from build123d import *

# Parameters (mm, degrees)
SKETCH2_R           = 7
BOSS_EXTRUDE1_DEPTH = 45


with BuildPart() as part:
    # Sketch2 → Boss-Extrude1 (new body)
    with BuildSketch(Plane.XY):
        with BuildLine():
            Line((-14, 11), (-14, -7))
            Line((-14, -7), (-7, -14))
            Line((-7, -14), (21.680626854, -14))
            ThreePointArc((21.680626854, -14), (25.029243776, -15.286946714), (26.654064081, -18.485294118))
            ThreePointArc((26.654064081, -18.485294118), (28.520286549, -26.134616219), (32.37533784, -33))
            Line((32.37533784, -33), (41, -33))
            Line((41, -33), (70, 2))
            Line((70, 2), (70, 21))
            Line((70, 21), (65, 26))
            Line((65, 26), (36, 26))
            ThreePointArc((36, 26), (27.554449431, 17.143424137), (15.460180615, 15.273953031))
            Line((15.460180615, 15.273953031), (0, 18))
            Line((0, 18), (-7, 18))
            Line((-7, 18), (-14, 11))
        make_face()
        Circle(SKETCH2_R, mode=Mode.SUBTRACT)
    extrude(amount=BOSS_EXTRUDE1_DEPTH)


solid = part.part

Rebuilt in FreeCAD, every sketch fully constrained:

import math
import FreeCAD as App
import Part
import Sketcher

V = App.Vector
Q = App.Units.Quantity

doc = App.newDocument("Part")
body = doc.addObject("PartDesign::Body", "Body")

# Sketch on XY plane
sketch1 = doc.addObject("Sketcher::SketchObject", "Sketch")
body.addObject(sketch1)
sketch1.AttachmentSupport = (doc.XY_Plane, [""])
sketch1.MapMode = "FlatFace"
sketch1.addGeometry(Part.LineSegment(V(-14, 11, 0), V(-14, -7, 0)), False)
sketch1.addGeometry(Part.LineSegment(V(-14, -7, 0), V(-7, -14, 0)), False)
sketch1.addGeometry(Part.LineSegment(V(-7, -14, 0), V(22, -14, 0)), False)
sketch1.addGeometry(Part.ArcOfCircle(Part.Circle(V(22, -19, 0), V(0, 0, 1), 5), math.radians(6), math.radians(90)), False)
sketch1.addGeometry(Part.ArcOfCircle(Part.Circle(V(55, -16, 0), V(0, 0, 1), 29), math.radians(-174), math.radians(-143)), False)
sketch1.addGeometry(Part.LineSegment(V(32, -33, 0), V(41, -33, 0)), False)
sketch1.addGeometry(Part.LineSegment(V(41, -33, 0), V(70, 2, 0)), False)
sketch1.addGeometry(Part.LineSegment(V(70, 2, 0), V(70, 21, 0)), False)
sketch1.addGeometry(Part.LineSegment(V(70, 21, 0), V(65, 26, 0)), False)
sketch1.addGeometry(Part.LineSegment(V(65, 26, 0), V(36, 26, 0)), False)
sketch1.addGeometry(Part.ArcOfCircle(Part.Circle(V(19, 34, 0), V(0, 0, 1), 19), math.radians(-100), math.radians(-25)), False)
sketch1.addGeometry(Part.LineSegment(V(15, 15, 0), V(0, 18, 0)), False)
sketch1.addGeometry(Part.LineSegment(V(0, 18, 0), V(-7, 18, 0)), False)
sketch1.addGeometry(Part.LineSegment(V(-7, 18, 0), V(-14, 11, 0)), False)
sketch1.addGeometry(Part.Circle(V(0, 0, 0), V(0, 0, 1), 7), False)
sketch1.addConstraint(Sketcher.Constraint("Coincident", 0, 2, 1, 1))
sketch1.addConstraint(Sketcher.Constraint("Coincident", 1, 2, 2, 1))
sketch1.addConstraint(Sketcher.Constraint("Tangent", 2, 2, 3, 2))
sketch1.addConstraint(Sketcher.Constraint("Tangent", 3, 1, 4, 1))
sketch1.addConstraint(Sketcher.Constraint("Coincident", 4, 2, 5, 1))
sketch1.addConstraint(Sketcher.Constraint("Coincident", 5, 2, 6, 1))
sketch1.addConstraint(Sketcher.Constraint("Coincident", 6, 2, 7, 1))
sketch1.addConstraint(Sketcher.Constraint("Coincident", 7, 2, 8, 1))
sketch1.addConstraint(Sketcher.Constraint("Coincident", 8, 2, 9, 1))
sketch1.addConstraint(Sketcher.Constraint("Coincident", 9, 2, 10, 2))
sketch1.addConstraint(Sketcher.Constraint("Tangent", 10, 1, 11, 1))
sketch1.addConstraint(Sketcher.Constraint("Coincident", 11, 2, 12, 1))
sketch1.addConstraint(Sketcher.Constraint("Coincident", 12, 2, 13, 1))
sketch1.addConstraint(Sketcher.Constraint("Coincident", 13, 2, 0, 1))
sketch1.addConstraint(Sketcher.Constraint("Vertical", 0))
sketch1.addConstraint(Sketcher.Constraint("Horizontal", 2))
sketch1.addConstraint(Sketcher.Constraint("Horizontal", 5))
sketch1.addConstraint(Sketcher.Constraint("Vertical", 7))
sketch1.addConstraint(Sketcher.Constraint("Horizontal", 9))
sketch1.addConstraint(Sketcher.Constraint("Horizontal", 12))
sketch1.addConstraint(Sketcher.Constraint("Coincident", 14, 3, -1, 1))
sketch1.addConstraint(Sketcher.Constraint("PointOnObject", 11, 2, -2))
sketch1.addConstraint(Sketcher.Constraint("Parallel", 1, 8))
sketch1.addConstraint(Sketcher.Constraint("Perpendicular", 8, 13))
sketch1.addConstraint(Sketcher.Constraint("Vertical", 1, 2, 12, 2))
sketch1.addConstraint(Sketcher.Constraint("Equal", 1, 13))
sketch1.addConstraint(Sketcher.Constraint("Diameter", 14, Q("14 mm")))
sketch1.addConstraint(Sketcher.Constraint("Radius", 3, Q("5 mm")))
sketch1.addConstraint(Sketcher.Constraint("Radius", 4, Q("29 mm")))
sketch1.addConstraint(Sketcher.Constraint("Radius", 10, Q("19 mm")))
sketch1.addConstraint(Sketcher.Constraint("DistanceX", 9, 2, 9, 1, Q("29 mm")))
sketch1.addConstraint(Sketcher.Constraint("DistanceX", 12, 2, 12, 1, Q("7 mm")))
sketch1.addConstraint(Sketcher.Constraint("DistanceY", 0, 2, 0, 1, Q("18 mm")))
sketch1.addConstraint(Sketcher.Constraint("DistanceY", 7, 1, 7, 2, Q("19 mm")))
sketch1.addConstraint(Sketcher.Constraint("Angle", 11, Q("170 deg")))
sketch1.addConstraint(Sketcher.Constraint("DistanceY", 3, 3, -1, 1, Q("19 mm")))
sketch1.addConstraint(Sketcher.Constraint("DistanceX", 0, 2, -1, 1, Q("14 mm")))
sketch1.addConstraint(Sketcher.Constraint("DistanceY", 4, 2, -1, 1, Q("33 mm")))
sketch1.addConstraint(Sketcher.Constraint("DistanceX", -1, 1, 5, 2, Q("41 mm")))
sketch1.addConstraint(Sketcher.Constraint("DistanceX", -1, 1, 6, 2, Q("70 mm")))
sketch1.addConstraint(Sketcher.Constraint("DistanceY", -1, 1, 6, 2, Q("2 mm")))
sketch1.addConstraint(Sketcher.Constraint("DistanceX", -1, 1, 8, 2, Q("65 mm")))
sketch1.addConstraint(Sketcher.Constraint("DistanceX", -1, 1, 4, 3, Q("55.5 mm")))
sketch1.addConstraint(Sketcher.Constraint("DistanceY", 4, 3, -1, 1, Q("15.5 mm")))
pad1 = doc.addObject("PartDesign::Pad", "Pad")
body.addObject(pad1)
pad1.Profile = sketch1
pad1.Length = 45

doc.recompute()
